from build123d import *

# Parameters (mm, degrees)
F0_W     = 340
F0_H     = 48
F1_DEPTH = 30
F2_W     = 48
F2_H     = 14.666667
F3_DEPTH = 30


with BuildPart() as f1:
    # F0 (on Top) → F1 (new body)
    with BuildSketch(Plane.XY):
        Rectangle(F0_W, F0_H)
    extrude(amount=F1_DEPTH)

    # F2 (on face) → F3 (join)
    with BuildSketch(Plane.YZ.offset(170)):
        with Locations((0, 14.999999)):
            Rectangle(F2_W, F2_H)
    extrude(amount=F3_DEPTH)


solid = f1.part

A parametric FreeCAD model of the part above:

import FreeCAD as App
import Part
import Sketcher

doc = App.newDocument("Part")
body = doc.addObject("PartDesign::Body", "Body")

# Sketch on XY plane
sketch1 = body.newObject("Sketcher::SketchObject", "Sketch")
sketch1.AttachmentSupport = (doc.getObject("XY_Plane"), [""])
sketch1.MapMode = "FlatFace"
sketch1.addGeometry(Part.LineSegment(App.Vector(-170, 24, 0), App.Vector(-170, -24, 0)), False)
sketch1.addGeometry(Part.LineSegment(App.Vector(-170, -24, 0), App.Vector(170, -24, 0)), False)
sketch1.addGeometry(Part.LineSegment(App.Vector(170, -24, 0), App.Vector(170, 24, 0)), False)
sketch1.addGeometry(Part.LineSegment(App.Vector(170, 24, 0), App.Vector(-170, 24, 0)), False)
sketch1.addConstraint(Sketcher.Constraint("Coincident", 0, 2, 1, 1))
sketch1.addConstraint(Sketcher.Constraint("Coincident", 1, 2, 2, 1))
sketch1.addConstraint(Sketcher.Constraint("Coincident", 2, 2, 3, 1))
sketch1.addConstraint(Sketcher.Constraint("Coincident", 3, 2, 0, 1))
sketch1.addConstraint(Sketcher.Constraint("Vertical", 0))
sketch1.addConstraint(Sketcher.Constraint("Horizontal", 1))
sketch1.addConstraint(Sketcher.Constraint("Vertical", 2))
sketch1.addConstraint(Sketcher.Constraint("Horizontal", 3))
sketch1.addConstraint(Sketcher.Constraint("Symmetric", 0, 2, 2, 2, -1, 1))
sketch1.addConstraint(Sketcher.Constraint("DistanceX", 1, 1, 1, 2, 340.0))
sketch1.addConstraint(Sketcher.Constraint("DistanceY", 0, 2, 0, 1, 48.0))
pad1 = body.newObject("PartDesign::Pad", "Pad")
pad1.Profile = sketch1
pad1.Length = 30

# Sketch on YZ plane
sketch2 = body.newObject("Sketcher::SketchObject", "Sketch001")
sketch2.AttachmentSupport = (doc.getObject("YZ_Plane"), [""])
sketch2.MapMode = "FlatFace"
sketch2.AttachmentOffset = App.Placement(App.Vector(0, 0, 170), App.Rotation())
sketch2.addGeometry(Part.LineSegment(App.Vector(-24, 22, 0), App.Vector(-24, 8, 0)), False)
sketch2.addGeometry(Part.LineSegment(App.Vector(-24, 8, 0), App.Vector(24, 8, 0)), False)
sketch2.addGeometry(Part.LineSegment(App.Vector(24, 8, 0), App.Vector(24, 22, 0)), False)
sketch2.addGeometry(Part.LineSegment(App.Vector(24, 22, 0), App.Vector(-24, 22, 0)), False)
sketch2.addConstraint(Sketcher.Constraint("Coincident", 0, 2, 1, 1))
sketch2.addConstraint(Sketcher.Constraint("Coincident", 1, 2, 2, 1))
sketch2.addConstraint(Sketcher.Constraint("Coincident", 2, 2, 3, 1))
sketch2.addConstraint(Sketcher.Constraint("Coincident", 3, 2, 0, 1))
sketch2.addConstraint(Sketcher.Constraint("Vertical", 0))
sketch2.addConstraint(Sketcher.Constraint("Horizontal", 1))
sketch2.addConstraint(Sketcher.Constraint("Vertical", 2))
sketch2.addConstraint(Sketcher.Constraint("Horizontal", 3))
sketch2.addConstraint(Sketcher.Constraint("DistanceX", 1, 1, 1, 2, 48.0))
sketch2.addConstraint(Sketcher.Constraint("DistanceX", 0, 2, -1, 1, 24.0))
sketch2.addConstraint(Sketcher.Constraint("DistanceY", 0, 2, 0, 1, 14.666667))
sketch2.addConstraint(Sketcher.Constraint("DistanceY", -1, 1, 0, 2, 7.666665))
pad2 = body.newObject("PartDesign::Pad", "Pad001")
pad2.Profile = sketch2
pad2.Length = 30

doc.recompute()
